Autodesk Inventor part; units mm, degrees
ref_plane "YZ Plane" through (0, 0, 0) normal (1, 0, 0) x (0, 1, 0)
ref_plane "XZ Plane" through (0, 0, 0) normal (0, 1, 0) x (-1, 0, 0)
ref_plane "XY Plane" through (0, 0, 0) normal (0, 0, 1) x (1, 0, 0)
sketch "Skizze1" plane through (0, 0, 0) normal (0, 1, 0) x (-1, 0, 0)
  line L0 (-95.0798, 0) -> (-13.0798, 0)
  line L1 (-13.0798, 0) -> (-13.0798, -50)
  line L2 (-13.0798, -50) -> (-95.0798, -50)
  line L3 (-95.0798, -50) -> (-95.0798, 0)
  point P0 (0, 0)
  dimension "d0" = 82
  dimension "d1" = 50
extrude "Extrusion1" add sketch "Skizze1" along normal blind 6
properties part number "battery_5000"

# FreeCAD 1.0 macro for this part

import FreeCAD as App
import Part
import Sketcher
from FreeCAD import Vector


def add_polygon(sketch, points):
    """Adds a closed chain of lines whose ends are joined by coincident constraints."""
    first, n = sketch.GeometryCount, len(points)
    for a, b in zip(points, points[1:] + points[:1]):
        sketch.addGeometry(Part.LineSegment(App.Vector(*a, 0), App.Vector(*b, 0)), False)
    for i in range(n):
        sketch.addConstraint(Sketcher.Constraint("Coincident", first + i, 2, first + (i + 1) % n, 1))

doc = App.newDocument("Part")
body = doc.addObject("PartDesign::Body", "Body")

# Sketch on XZ plane
sketch1 = body.newObject("Sketcher::SketchObject", "Sketch")
sketch1.AttachmentSupport = (doc.getObject("XZ_Plane"), [""])
sketch1.MapMode = "FlatFace"
add_polygon(sketch1, [(13, 0), (95, 0), (95, -50), (13, -50)])  # lines 0-3
sketch1.addConstraint(Sketcher.Constraint("Horizontal", 0))
sketch1.addConstraint(Sketcher.Constraint("Vertical", 1))
sketch1.addConstraint(Sketcher.Constraint("Horizontal", 2))
sketch1.addConstraint(Sketcher.Constraint("Vertical", 3))
sketch1.addConstraint(Sketcher.Constraint("PointOnObject", 0, 2, -1))
sketch1.addConstraint(Sketcher.Constraint("DistanceX", 0, 1, 0, 2, 82.0))
sketch1.addConstraint(Sketcher.Constraint("DistanceY", 1, 2, 1, 1, 50.0))
sketch1.addConstraint(Sketcher.Constraint("DistanceX", -1, 1, 0, 2, 95.0798))
pad1 = body.newObject("PartDesign::Pad", "Pad")
pad1.Profile = sketch1
pad1.Length = 6
pad1.Reversed = True

doc.recompute()
